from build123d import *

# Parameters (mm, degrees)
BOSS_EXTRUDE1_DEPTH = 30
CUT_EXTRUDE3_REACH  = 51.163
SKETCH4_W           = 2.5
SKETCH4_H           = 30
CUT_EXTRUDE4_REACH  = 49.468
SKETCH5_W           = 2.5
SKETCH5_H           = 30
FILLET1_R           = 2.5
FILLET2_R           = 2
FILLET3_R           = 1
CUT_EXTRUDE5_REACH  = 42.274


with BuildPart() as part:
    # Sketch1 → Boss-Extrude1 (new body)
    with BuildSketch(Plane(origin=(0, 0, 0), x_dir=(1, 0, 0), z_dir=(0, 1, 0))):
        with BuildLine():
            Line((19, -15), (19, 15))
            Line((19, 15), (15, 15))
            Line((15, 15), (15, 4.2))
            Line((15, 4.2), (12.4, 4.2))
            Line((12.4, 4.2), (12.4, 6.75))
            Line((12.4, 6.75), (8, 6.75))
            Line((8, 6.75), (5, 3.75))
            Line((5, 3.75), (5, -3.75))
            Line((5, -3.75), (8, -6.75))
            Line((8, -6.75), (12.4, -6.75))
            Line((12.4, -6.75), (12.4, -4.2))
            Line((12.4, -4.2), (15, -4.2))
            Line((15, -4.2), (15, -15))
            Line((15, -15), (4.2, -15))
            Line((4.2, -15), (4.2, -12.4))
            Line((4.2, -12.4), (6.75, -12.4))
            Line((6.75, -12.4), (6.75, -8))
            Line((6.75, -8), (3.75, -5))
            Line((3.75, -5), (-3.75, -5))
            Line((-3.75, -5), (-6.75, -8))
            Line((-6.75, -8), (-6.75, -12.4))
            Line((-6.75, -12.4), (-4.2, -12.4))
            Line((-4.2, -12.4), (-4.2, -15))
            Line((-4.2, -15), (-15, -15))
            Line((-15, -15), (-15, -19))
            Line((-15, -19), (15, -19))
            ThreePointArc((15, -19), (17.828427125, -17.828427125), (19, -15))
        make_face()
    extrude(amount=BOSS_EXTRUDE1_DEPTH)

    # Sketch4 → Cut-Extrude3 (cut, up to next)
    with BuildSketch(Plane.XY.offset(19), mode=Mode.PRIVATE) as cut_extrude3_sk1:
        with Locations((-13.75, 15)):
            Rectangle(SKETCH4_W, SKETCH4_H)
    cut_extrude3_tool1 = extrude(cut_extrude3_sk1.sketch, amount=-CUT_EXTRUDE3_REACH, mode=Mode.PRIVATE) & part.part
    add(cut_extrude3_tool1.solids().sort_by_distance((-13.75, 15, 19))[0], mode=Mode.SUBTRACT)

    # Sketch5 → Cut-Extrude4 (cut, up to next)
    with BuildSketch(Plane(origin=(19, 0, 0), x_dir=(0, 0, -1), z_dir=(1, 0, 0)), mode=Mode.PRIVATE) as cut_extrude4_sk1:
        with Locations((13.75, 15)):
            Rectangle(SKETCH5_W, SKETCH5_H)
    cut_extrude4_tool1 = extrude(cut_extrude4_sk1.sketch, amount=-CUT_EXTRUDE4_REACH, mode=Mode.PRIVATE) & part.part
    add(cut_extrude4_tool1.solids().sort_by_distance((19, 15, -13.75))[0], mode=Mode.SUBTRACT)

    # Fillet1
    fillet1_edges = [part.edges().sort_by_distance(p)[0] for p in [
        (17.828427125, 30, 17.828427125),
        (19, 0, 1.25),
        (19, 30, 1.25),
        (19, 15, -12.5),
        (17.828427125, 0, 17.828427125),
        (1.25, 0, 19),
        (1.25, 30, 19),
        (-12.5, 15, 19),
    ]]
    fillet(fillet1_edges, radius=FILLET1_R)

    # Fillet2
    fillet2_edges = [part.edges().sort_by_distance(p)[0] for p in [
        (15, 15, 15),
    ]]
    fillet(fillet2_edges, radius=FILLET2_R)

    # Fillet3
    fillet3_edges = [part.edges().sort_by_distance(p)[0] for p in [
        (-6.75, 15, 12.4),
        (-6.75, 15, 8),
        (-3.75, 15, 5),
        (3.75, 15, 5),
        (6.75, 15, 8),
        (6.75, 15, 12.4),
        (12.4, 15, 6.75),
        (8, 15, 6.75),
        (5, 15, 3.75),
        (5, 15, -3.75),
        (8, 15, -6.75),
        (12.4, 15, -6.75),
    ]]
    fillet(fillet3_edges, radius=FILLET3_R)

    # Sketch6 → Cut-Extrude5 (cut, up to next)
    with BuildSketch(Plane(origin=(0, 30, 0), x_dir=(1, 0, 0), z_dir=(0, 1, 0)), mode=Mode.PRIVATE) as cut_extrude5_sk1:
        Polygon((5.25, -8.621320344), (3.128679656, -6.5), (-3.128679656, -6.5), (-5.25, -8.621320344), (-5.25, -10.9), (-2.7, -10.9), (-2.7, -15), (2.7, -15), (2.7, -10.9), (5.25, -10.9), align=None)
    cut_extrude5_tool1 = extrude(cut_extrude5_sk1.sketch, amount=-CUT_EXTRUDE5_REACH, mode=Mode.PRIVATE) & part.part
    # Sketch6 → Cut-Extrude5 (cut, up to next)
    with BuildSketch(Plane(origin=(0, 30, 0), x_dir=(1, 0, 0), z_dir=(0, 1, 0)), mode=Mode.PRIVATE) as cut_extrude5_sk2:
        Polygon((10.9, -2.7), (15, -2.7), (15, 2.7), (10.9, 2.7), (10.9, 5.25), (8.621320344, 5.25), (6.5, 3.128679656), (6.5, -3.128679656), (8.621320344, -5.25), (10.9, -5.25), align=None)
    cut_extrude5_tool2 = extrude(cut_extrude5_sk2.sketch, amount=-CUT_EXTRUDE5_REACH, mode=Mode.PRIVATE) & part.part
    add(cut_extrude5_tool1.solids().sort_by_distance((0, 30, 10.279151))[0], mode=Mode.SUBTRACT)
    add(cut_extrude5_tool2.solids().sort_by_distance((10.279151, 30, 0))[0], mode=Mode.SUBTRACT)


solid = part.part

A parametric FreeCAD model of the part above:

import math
import FreeCAD as App
import Part
import Sketcher


def edges_at(feature, points):
    """Names of the edges that pass closest to the given points."""
    edges = feature.Shape.Edges
    near = lambda p: min(range(len(edges)), key=lambda i: edges[i].distToShape(Part.Vertex(*p))[0])
    return sorted({f"Edge{near(p) + 1}" for p in points})

doc = App.newDocument("Part")
params = doc.addObject("Spreadsheet::Sheet", "Params")
for row, (alias, value) in enumerate([
    ("sketch1_radius", "4 mm"),
    ("sketch1_width", "30 mm"),
    ("sketch1_width2", "2.6 mm"),
    ("sketch1_width3", "4.4 mm"),
    ("sketch1_width4", "10.8 mm"),
    ("pad1_length", "30 mm"),
    ("sketch2_height", "30 mm"),
    ("sketch2_width", "2.5 mm"),
    ("sketch3_width", "30 mm"),
    ("sketch3_height", "2.5 mm"),
    ("fillet_radius", "2.5 mm"),
    ("fillet2_radius", "2 mm"),
    ("fillet3_radius", "1 mm"),
    ("sketch4_length", "3 mm"),
    ("sketch4_width", "5.4 mm"),
    ("sketch4_height", "4.1 mm"),
    ("sketch4_width2", "2.55 mm"),
    ("sketch5_length", "3 mm"),
    ("sketch5_width", "4.1 mm"),
    ("sketch5_height", "5.4 mm"),
    ("sketch5_height2", "2.55 mm"),
], start=1):
    params.set(f"A{row}", alias)
    params.set(f"B{row}", "=" + value)
    params.setAlias(f"B{row}", alias)

body = doc.addObject("PartDesign::Body", "Body")

# Sketch on XZ plane
sketch1 = body.newObject("Sketcher::SketchObject", "Sketch")
sketch1.AttachmentSupport = (doc.getObject("XZ_Plane"), [""])
sketch1.MapMode = "FlatFace"
sketch1.addGeometry([
    Part.LineSegment(App.Vector(19, 15, 0), App.Vector(19, -15, 0)),  # 0
    Part.LineSegment(App.Vector(19, -15, 0), App.Vector(15, -15, 0)),  # 1
    Part.LineSegment(App.Vector(15, -15, 0), App.Vector(15, -4.2, 0)),  # 2
    Part.LineSegment(App.Vector(15, -4.2, 0), App.Vector(12.4, -4.2, 0)),  # 3
    Part.LineSegment(App.Vector(12.4, -4.2, 0), App.Vector(12.4, -6.8, 0)),  # 4
    Part.LineSegment(App.Vector(12.4, -6.8, 0), App.Vector(8, -6.8, 0)),  # 5
    Part.LineSegment(App.Vector(8, -6.8, 0), App.Vector(5, -3.8, 0)),  # 6
    Part.LineSegment(App.Vector(5, -3.8, 0), App.Vector(5, 3.8, 0)),  # 7
    Part.LineSegment(App.Vector(5, 3.8, 0), App.Vector(8, 6.8, 0)),  # 8
    Part.LineSegment(App.Vector(8, 6.8, 0), App.Vector(12.4, 6.8, 0)),  # 9
    Part.LineSegment(App.Vector(12.4, 6.8, 0), App.Vector(12.4, 4.2, 0)),  # 10
    Part.LineSegment(App.Vector(12.4, 4.2, 0), App.Vector(15, 4.2, 0)),  # 11
    Part.LineSegment(App.Vector(15, 4.2, 0), App.Vector(15, 15, 0)),  # 12
    Part.LineSegment(App.Vector(15, 15, 0), App.Vector(4.2, 15, 0)),  # 13
    Part.LineSegment(App.Vector(4.2, 15, 0), App.Vector(4.2, 12.4, 0)),  # 14
    Part.LineSegment(App.Vector(4.2, 12.4, 0), App.Vector(6.8, 12.4, 0)),  # 15
    Part.LineSegment(App.Vector(6.8, 12.4, 0), App.Vector(6.8, 8, 0)),  # 16
    Part.LineSegment(App.Vector(6.8, 8, 0), App.Vector(3.8, 5, 0)),  # 17
    Part.LineSegment(App.Vector(3.8, 5, 0), App.Vector(-3.8, 5, 0)),  # 18
    Part.LineSegment(App.Vector(-3.8, 5, 0), App.Vector(-6.8, 8, 0)),  # 19
    Part.LineSegment(App.Vector(-6.8, 8, 0), App.Vector(-6.8, 12.4, 0)),  # 20
    Part.LineSegment(App.Vector(-6.8, 12.4, 0), App.Vector(-4.2, 12.4, 0)),  # 21
    Part.LineSegment(App.Vector(-4.2, 12.4, 0), App.Vector(-4.2, 15, 0)),  # 22
    Part.LineSegment(App.Vector(-4.2, 15, 0), App.Vector(-15, 15, 0)),  # 23
    Part.LineSegment(App.Vector(-15, 15, 0), App.Vector(-15, 19, 0)),  # 24
    Part.LineSegment(App.Vector(-15, 19, 0), App.Vector(15, 19, 0)),  # 25
    Part.ArcOfCircle(Part.Circle(App.Vector(15, 15, 0), App.Vector(0, 0, 1), 4), math.radians(0), math.radians(90)),  # 26
], False)
sketch1.addConstraint([
    Sketcher.Constraint("Coincident", 0, 2, 1, 1),
    Sketcher.Constraint("Coincident", 1, 2, 2, 1),
    Sketcher.Constraint("Coincident", 2, 2, 3, 1),
    Sketcher.Constraint("Coincident", 3, 2, 4, 1),
    Sketcher.Constraint("Coincident", 4, 2, 5, 1),
    Sketcher.Constraint("Coincident", 5, 2, 6, 1),
    Sketcher.Constraint("Coincident", 6, 2, 7, 1),
    Sketcher.Constraint("Coincident", 7, 2, 8, 1),
    Sketcher.Constraint("Coincident", 8, 2, 9, 1),
    Sketcher.Constraint("Coincident", 9, 2, 10, 1),
    Sketcher.Constraint("Coincident", 10, 2, 11, 1),
    Sketcher.Constraint("Coincident", 11, 2, 12, 1),
    Sketcher.Constraint("Coincident", 12, 2, 13, 1),
    Sketcher.Constraint("Coincident", 13, 2, 14, 1),
    Sketcher.Constraint("Coincident", 14, 2, 15, 1),
    Sketcher.Constraint("Coincident", 15, 2, 16, 1),
    Sketcher.Constraint("Coincident", 16, 2, 17, 1),
    Sketcher.Constraint("Coincident", 17, 2, 18, 1),
    Sketcher.Constraint("Coincident", 18, 2, 19, 1),
    Sketcher.Constraint("Coincident", 19, 2, 20, 1),
    Sketcher.Constraint("Coincident", 20, 2, 21, 1),
    Sketcher.Constraint("Coincident", 21, 2, 22, 1),
    Sketcher.Constraint("Coincident", 22, 2, 23, 1),
    Sketcher.Constraint("Coincident", 23, 2, 24, 1),
    Sketcher.Constraint("Coincident", 24, 2, 25, 1),
    Sketcher.Constraint("Tangent", 25, 2, 26, 2),
    Sketcher.Constraint("Tangent", 26, 1, 0, 1),
    Sketcher.Constraint("Vertical", 0),
    Sketcher.Constraint("Horizontal", 1),
    Sketcher.Constraint("Vertical", 2),
    Sketcher.Constraint("Horizontal", 3),
    Sketcher.Constraint("Vertical", 4),
    Sketcher.Constraint("Horizontal", 5),
    Sketcher.Constraint("Vertical", 7),
    Sketcher.Constraint("Horizontal", 9),
    Sketcher.Constraint("Vertical", 10),
    Sketcher.Constraint("Horizontal", 11),
    Sketcher.Constraint("Vertical", 12),
    Sketcher.Constraint("Horizontal", 13),
    Sketcher.Constraint("Vertical", 14),
    Sketcher.Constraint("Horizontal", 15),
    Sketcher.Constraint("Vertical", 16),
    Sketcher.Constraint("Horizontal", 18),
    Sketcher.Constraint("Vertical", 20),
    Sketcher.Constraint("Horizontal", 21),
    Sketcher.Constraint("Vertical", 22),
    Sketcher.Constraint("Horizontal", 23),
    Sketcher.Constraint("Vertical", 24),
    Sketcher.Constraint("Horizontal", 25),
    Sketcher.Constraint("Coincident", 12, 2, 26, 3),
    Sketcher.Constraint("Symmetric", 1, 2, 23, 2, -1, 1),
    Sketcher.Constraint("Symmetric", 16, 2, 19, 2, -2),
    Sketcher.Constraint("Symmetric", 14, 2, 21, 2, -2),
    Sketcher.Constraint("Symmetric", 12, 2, 23, 2, -2),
    Sketcher.Constraint("Symmetric", 5, 2, 8, 2, -1),
    Sketcher.Constraint("Symmetric", 3, 2, 10, 2, -1),
    Sketcher.Constraint("Perpendicular", 6, 8),
    Sketcher.Constraint("Parallel", 8, 17),
    Sketcher.Constraint("Perpendicular", 17, 19),
    Sketcher.Constraint("Equal", 25, 0),
    Sketcher.Constraint("Equal", 23, 2),
    Sketcher.Constraint("Equal", 21, 4),
    Sketcher.Constraint("Equal", 18, 7),
    Sketcher.Constraint("Equal", 11, 14),
    Sketcher.Constraint("Equal", 9, 16),
    Sketcher.Constraint("Equal", 6, 8),
    Sketcher.Constraint("Radius", 26, 4.0),
    Sketcher.Constraint("DistanceX", 25, 1, 25, 2, 30.0),
    Sketcher.Constraint("DistanceX", 3, 2, 3, 1, 2.6),
    Sketcher.Constraint("DistanceX", 5, 2, 5, 1, 4.4),
    Sketcher.Constraint("DistanceX", 13, 2, 13, 1, 10.8),
    Sketcher.Constraint("DistanceX", 18, 2, 18, 1, 7.5),
    Sketcher.Constraint("DistanceX", -1, 1, 6, 2, 5.0),
])
sketch1.setExpression("Constraints[66]", "Params.sketch1_radius")
sketch1.setExpression("Constraints[67]", "Params.sketch1_width")
sketch1.setExpression("Constraints[68]", "Params.sketch1_width2")
sketch1.setExpression("Constraints[69]", "Params.sketch1_width3")
sketch1.setExpression("Constraints[70]", "Params.sketch1_width4")
pad1 = body.newObject("PartDesign::Pad", "Pad")
pad1.Profile = sketch1
pad1.setExpression("Length", "Params.pad1_length")
pad1.Reversed = True

# Sketch on XY plane
sketch2 = body.newObject("Sketcher::SketchObject", "Sketch001")
sketch2.AttachmentSupport = (doc.getObject("XY_Plane"), [""])
sketch2.MapMode = "FlatFace"
sketch2.AttachmentOffset = App.Placement(App.Vector(0, 0, 19), App.Rotation())
sketch2.addGeometry([
    Part.LineSegment(App.Vector(-15, 30, 0), App.Vector(-15, 0, 0)),
    Part.LineSegment(App.Vector(-15, 0, 0), App.Vector(-12.5, 0, 0)),
    Part.LineSegment(App.Vector(-12.5, 0, 0), App.Vector(-12.5, 30, 0)),
    Part.LineSegment(App.Vector(-12.5, 30, 0), App.Vector(-15, 30, 0)),
], False)
sketch2.addConstraint([
    Sketcher.Constraint("Coincident", 0, 2, 1, 1),
    Sketcher.Constraint("Coincident", 1, 2, 2, 1),
    Sketcher.Constraint("Coincident", 2, 2, 3, 1),
    Sketcher.Constraint("Coincident", 3, 2, 0, 1),
    Sketcher.Constraint("Vertical", 0),
    Sketcher.Constraint("Horizontal", 1),
    Sketcher.Constraint("Vertical", 2),
    Sketcher.Constraint("Horizontal", 3),
    Sketcher.Constraint("PointOnObject", 0, 2, -1),
    Sketcher.Constraint("DistanceY", 0, 2, 0, 1, 30.0),
    Sketcher.Constraint("DistanceX", 1, 1, 1, 2, 2.5),
    Sketcher.Constraint("DistanceX", 0, 2, -1, 1, 15.0),
])
sketch2.setExpression("Constraints[9]", "Params.sketch2_height")
sketch2.setExpression("Constraints[10]", "Params.sketch2_width")
pocket1 = body.newObject("PartDesign::Pocket", "Pocket")
pocket1.Profile = sketch2
pocket1.Type = "UpToFirst"

# Sketch on YZ plane
sketch3 = body.newObject("Sketcher::SketchObject", "Sketch002")
sketch3.AttachmentSupport = (doc.getObject("YZ_Plane"), [""])
sketch3.MapMode = "FlatFace"
sketch3.AttachmentOffset = App.Placement(App.Vector(0, 0, 19), App.Rotation())
sketch3.addGeometry([
    Part.LineSegment(App.Vector(30, -12.5, 0), App.Vector(0, -12.5, 0)),
    Part.LineSegment(App.Vector(0, -12.5, 0), App.Vector(0, -15, 0)),
    Part.LineSegment(App.Vector(0, -15, 0), App.Vector(30, -15, 0)),
    Part.LineSegment(App.Vector(30, -15, 0), App.Vector(30, -12.5, 0)),
], False)
sketch3.addConstraint([
    Sketcher.Constraint("Coincident", 0, 2, 1, 1),
    Sketcher.Constraint("Coincident", 1, 2, 2, 1),
    Sketcher.Constraint("Coincident", 2, 2, 3, 1),
    Sketcher.Constraint("Coincident", 3, 2, 0, 1),
    Sketcher.Constraint("Horizontal", 0),
    Sketcher.Constraint("Vertical", 1),
    Sketcher.Constraint("Horizontal", 2),
    Sketcher.Constraint("Vertical", 3),
    Sketcher.Constraint("PointOnObject", 0, 2, -2),
    Sketcher.Constraint("DistanceX", 0, 2, 0, 1, 30.0),
    Sketcher.Constraint("DistanceY", 1, 2, 1, 1, 2.5),
    Sketcher.Constraint("DistanceY", 1, 2, -1, 1, 15.0),
])
sketch3.setExpression("Constraints[9]", "Params.sketch3_width")
sketch3.setExpression("Constraints[10]", "Params.sketch3_height")
pocket2 = body.newObject("PartDesign::Pocket", "Pocket001")
pocket2.Profile = sketch3
pocket2.Type = "UpToFirst"
doc.recompute()

fillet = body.newObject("PartDesign::Fillet", "Fillet")
fillet.Base = (pocket2, edges_at(pocket2, [
    (17.828, 30, 17.828),
    (19, 0, 1.25),
    (19, 30, 1.25),
    (19, 15, -12.5),
    (17.828, 0, 17.828),
    (1.25, 0, 19),
    (1.25, 30, 19),
    (-12.5, 15, 19),
]))
fillet.setExpression("Radius", "Params.fillet_radius")
doc.recompute()

fillet2 = body.newObject("PartDesign::Fillet", "Fillet001")
fillet2.Base = (fillet, edges_at(fillet, [(15, 15, 15)]))
fillet2.setExpression("Radius", "Params.fillet2_radius")
doc.recompute()

fillet3 = body.newObject("PartDesign::Fillet", "Fillet002")
fillet3.Base = (fillet2, edges_at(fillet2, [
    (-6.75, 15, 12.4),
    (-6.75, 15, 8),
    (-3.75, 15, 5),
    (3.75, 15, 5),
    (6.75, 15, 8),
    (6.75, 15, 12.4),
    (12.4, 15, 6.75),
    (8, 15, 6.75),
    (5, 15, 3.75),
    (5, 15, -3.75),
    (8, 15, -6.75),
    (12.4, 15, -6.75),
]))
fillet3.setExpression("Radius", "Params.fillet3_radius")

# Sketch on XZ plane
sketch4 = body.newObject("Sketcher::SketchObject", "Sketch003")
sketch4.AttachmentSupport = (doc.getObject("XZ_Plane"), [""])
sketch4.MapMode = "FlatFace"
sketch4.AttachmentOffset = App.Placement(App.Vector(0, 0, -30), App.Rotation())
sketch4.addGeometry([
    Part.LineSegment(App.Vector(5.2, 8.6, 0), App.Vector(3.1, 6.5, 0)),  # 0
    Part.LineSegment(App.Vector(3.1, 6.5, 0), App.Vector(-3.1, 6.5, 0)),  # 1
    Part.LineSegment(App.Vector(-3.1, 6.5, 0), App.Vector(-5.2, 8.6, 0)),  # 2
    Part.LineSegment(App.Vector(-5.2, 8.6, 0), App.Vector(-5.2, 10.9, 0)),  # 3
    Part.LineSegment(App.Vector(-5.2, 10.9, 0), App.Vector(-2.7, 10.9, 0)),  # 4
    Part.LineSegment(App.Vector(-2.7, 10.9, 0), App.Vector(-2.7, 15, 0)),  # 5
    Part.LineSegment(App.Vector(-2.7, 15, 0), App.Vector(2.7, 15, 0)),  # 6
    Part.LineSegment(App.Vector(2.7, 15, 0), App.Vector(2.7, 10.9, 0)),  # 7
    Part.LineSegment(App.Vector(2.7, 10.9, 0), App.Vector(5.2, 10.9, 0)),  # 8
    Part.LineSegment(App.Vector(5.2, 10.9, 0), App.Vector(5.2, 8.6, 0)),  # 9
], False)
sketch4.addConstraint([
    Sketcher.Constraint("Coincident", 0, 2, 1, 1),
    Sketcher.Constraint("Coincident", 1, 2, 2, 1),
    Sketcher.Constraint("Coincident", 2, 2, 3, 1),
    Sketcher.Constraint("Coincident", 3, 2, 4, 1),
    Sketcher.Constraint("Coincident", 4, 2, 5, 1),
    Sketcher.Constraint("Coincident", 5, 2, 6, 1),
    Sketcher.Constraint("Coincident", 6, 2, 7, 1),
    Sketcher.Constraint("Coincident", 7, 2, 8, 1),
    Sketcher.Constraint("Coincident", 8, 2, 9, 1),
    Sketcher.Constraint("Coincident", 9, 2, 0, 1),
    Sketcher.Constraint("Horizontal", 1),
    Sketcher.Constraint("Vertical", 3),
    Sketcher.Constraint("Horizontal", 4),
    Sketcher.Constraint("Vertical", 5),
    Sketcher.Constraint("Horizontal", 6),
    Sketcher.Constraint("Vertical", 7),
    Sketcher.Constraint("Horizontal", 8),
    Sketcher.Constraint("Vertical", 9),
    Sketcher.Constraint("Symmetric", 4, 2, 7, 2, -2),
    Sketcher.Constraint("Symmetric", 2, 2, 9, 2, -2),
    Sketcher.Constraint("Perpendicular", 0, 2),
    Sketcher.Constraint("Equal", 0, 2),
    Sketcher.Constraint("Distance", 0, 3.0),
    Sketcher.Constraint("DistanceX", 6, 1, 6, 2, 5.4),
    Sketcher.Constraint("DistanceY", 5, 1, 5, 2, 4.1),
    Sketcher.Constraint("DistanceY", -1, 1, 5, 2, 15.0),
    Sketcher.Constraint("DistanceX", 4, 1, 4, 2, 2.55),
    Sketcher.Constraint("DistanceY", -1, 1, 0, 2, 6.5),
])
sketch4.setExpression("Constraints[22]", "Params.sketch4_length")
sketch4.setExpression("Constraints[23]", "Params.sketch4_width")
sketch4.setExpression("Constraints[24]", "Params.sketch4_height")
sketch4.setExpression("Constraints[26]", "Params.sketch4_width2")
pocket3 = body.newObject("PartDesign::Pocket", "Pocket002")
pocket3.Profile = sketch4
pocket3.Type = "UpToFirst"
pocket3.Reversed = True

# Sketch on XZ plane
sketch5 = body.newObject("Sketcher::SketchObject", "Sketch004")
sketch5.AttachmentSupport = (doc.getObject("XZ_Plane"), [""])
sketch5.MapMode = "FlatFace"
sketch5.AttachmentOffset = App.Placement(App.Vector(0, 0, -30), App.Rotation())
sketch5.addGeometry([
    Part.LineSegment(App.Vector(10.9, 2.7, 0), App.Vector(15, 2.7, 0)),  # 0
    Part.LineSegment(App.Vector(15, 2.7, 0), App.Vector(15, -2.7, 0)),  # 1
    Part.LineSegment(App.Vector(15, -2.7, 0), App.Vector(10.9, -2.7, 0)),  # 2
    Part.LineSegment(App.Vector(10.9, -2.7, 0), App.Vector(10.9, -5.2, 0)),  # 3
    Part.LineSegment(App.Vector(10.9, -5.2, 0), App.Vector(8.6, -5.2, 0)),  # 4
    Part.LineSegment(App.Vector(8.6, -5.2, 0), App.Vector(6.5, -3.1, 0)),  # 5
    Part.LineSegment(App.Vector(6.5, -3.1, 0), App.Vector(6.5, 3.1, 0)),  # 6
    Part.LineSegment(App.Vector(6.5, 3.1, 0), App.Vector(8.6, 5.2, 0)),  # 7
    Part.LineSegment(App.Vector(8.6, 5.2, 0), App.Vector(10.9, 5.2, 0)),  # 8
    Part.LineSegment(App.Vector(10.9, 5.2, 0), App.Vector(10.9, 2.7, 0)),  # 9
], False)
sketch5.addConstraint([
    Sketcher.Constraint("Coincident", 0, 2, 1, 1),
    Sketcher.Constraint("Coincident", 1, 2, 2, 1),
    Sketcher.Constraint("Coincident", 2, 2, 3, 1),
    Sketcher.Constraint("Coincident", 3, 2, 4, 1),
    Sketcher.Constraint("Coincident", 4, 2, 5, 1),
    Sketcher.Constraint("Coincident", 5, 2, 6, 1),
    Sketcher.Constraint("Coincident", 6, 2, 7, 1),
    Sketcher.Constraint("Coincident", 7, 2, 8, 1),
    Sketcher.Constraint("Coincident", 8, 2, 9, 1),
    Sketcher.Constraint("Coincident", 9, 2, 0, 1),
    Sketcher.Constraint("Horizontal", 0),
    Sketcher.Constraint("Vertical", 1),
    Sketcher.Constraint("Horizontal", 2),
    Sketcher.Constraint("Vertical", 3),
    Sketcher.Constraint("Horizontal", 4),
    Sketcher.Constraint("Vertical", 6),
    Sketcher.Constraint("Horizontal", 8),
    Sketcher.Constraint("Vertical", 9),
    Sketcher.Constraint("Symmetric", 4, 2, 7, 2, -1),
    Sketcher.Constraint("Symmetric", 2, 2, 9, 2, -1),
    Sketcher.Constraint("Perpendicular", 5, 7),
    Sketcher.Constraint("Equal", 5, 7),
    Sketcher.Constraint("Distance", 5, 3.0),
    Sketcher.Constraint("DistanceX", 0, 1, 0, 2, 4.1),
    Sketcher.Constraint("DistanceY", 1, 2, 1, 1, 5.4),
    Sketcher.Constraint("DistanceX", -1, 1, 0, 2, 15.0),
    Sketcher.Constraint("DistanceY", 3, 2, 3, 1, 2.55),
    Sketcher.Constraint("DistanceX", -1, 1, 5, 2, 6.5),
])
sketch5.setExpression("Constraints[22]", "Params.sketch5_length")
sketch5.setExpression("Constraints[23]", "Params.sketch5_width")
sketch5.setExpression("Constraints[24]", "Params.sketch5_height")
sketch5.setExpression("Constraints[26]", "Params.sketch5_height2")
pocket4 = body.newObject("PartDesign::Pocket", "Pocket003")
pocket4.Profile = sketch5
pocket4.Type = "UpToFirst"
pocket4.Reversed = True

doc.recompute()
